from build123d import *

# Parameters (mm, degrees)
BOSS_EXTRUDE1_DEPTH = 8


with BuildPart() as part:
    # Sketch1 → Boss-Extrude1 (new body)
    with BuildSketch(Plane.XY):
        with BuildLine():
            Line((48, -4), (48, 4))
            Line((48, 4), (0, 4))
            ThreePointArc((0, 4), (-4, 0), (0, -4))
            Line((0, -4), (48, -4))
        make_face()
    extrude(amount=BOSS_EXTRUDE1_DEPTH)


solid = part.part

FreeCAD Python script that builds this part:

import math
import FreeCAD as App
import Part
import Sketcher

V = App.Vector

doc = App.newDocument("Part")
params = doc.addObject("Spreadsheet::Sheet", "Params")
for row, (alias, value) in enumerate([
    ("sketch1_radius", "4 mm"),
    ("sketch1_width", "48 mm"),
    ("pad1_length", "8 mm"),
], start=1):
    params.set(f"A{row}", alias)
    params.set(f"B{row}", "=" + value)
    params.setAlias(f"B{row}", alias)

body = doc.addObject("PartDesign::Body", "Body")

# Sketch on XY plane
sketch1 = body.newObject("Sketcher::SketchObject", "Sketch")
sketch1.AttachmentSupport = (doc.getObject("XY_Plane"), [""])
sketch1.MapMode = "FlatFace"
sketch1.addGeometry([
    Part.LineSegment(V(48, -4, 0), V(48, 4, 0)),
    Part.LineSegment(V(48, 4, 0), V(0, 4, 0)),
    Part.ArcOfCircle(Part.Circle(V(0, 0, 0), V(0, 0, 1), 4), math.radians(90), math.radians(270)),
    Part.LineSegment(V(0, -4, 0), V(48, -4, 0)),
], False)
sketch1.addConstraint([
    Sketcher.Constraint("Coincident", 0, 2, 1, 1),
    Sketcher.Constraint("Tangent", 1, 2, 2, 1),
    Sketcher.Constraint("Tangent", 2, 2, 3, 1),
    Sketcher.Constraint("Coincident", 3, 2, 0, 1),
    Sketcher.Constraint("Vertical", 0),
    Sketcher.Constraint("Horizontal", 1),
    Sketcher.Constraint("Horizontal", 3),
    Sketcher.Constraint("Coincident", 2, 3, -1, 1),
    Sketcher.Constraint("Radius", 2, 4.0),
    Sketcher.Constraint("DistanceX", 1, 2, 1, 1, 48.0),
])
sketch1.setExpression("Constraints[8]", "Params.sketch1_radius")
sketch1.setExpression("Constraints[9]", "Params.sketch1_width")
pad1 = body.newObject("PartDesign::Pad", "Pad")
pad1.Profile = sketch1
pad1.setExpression("Length", "Params.pad1_length")

doc.recompute()
